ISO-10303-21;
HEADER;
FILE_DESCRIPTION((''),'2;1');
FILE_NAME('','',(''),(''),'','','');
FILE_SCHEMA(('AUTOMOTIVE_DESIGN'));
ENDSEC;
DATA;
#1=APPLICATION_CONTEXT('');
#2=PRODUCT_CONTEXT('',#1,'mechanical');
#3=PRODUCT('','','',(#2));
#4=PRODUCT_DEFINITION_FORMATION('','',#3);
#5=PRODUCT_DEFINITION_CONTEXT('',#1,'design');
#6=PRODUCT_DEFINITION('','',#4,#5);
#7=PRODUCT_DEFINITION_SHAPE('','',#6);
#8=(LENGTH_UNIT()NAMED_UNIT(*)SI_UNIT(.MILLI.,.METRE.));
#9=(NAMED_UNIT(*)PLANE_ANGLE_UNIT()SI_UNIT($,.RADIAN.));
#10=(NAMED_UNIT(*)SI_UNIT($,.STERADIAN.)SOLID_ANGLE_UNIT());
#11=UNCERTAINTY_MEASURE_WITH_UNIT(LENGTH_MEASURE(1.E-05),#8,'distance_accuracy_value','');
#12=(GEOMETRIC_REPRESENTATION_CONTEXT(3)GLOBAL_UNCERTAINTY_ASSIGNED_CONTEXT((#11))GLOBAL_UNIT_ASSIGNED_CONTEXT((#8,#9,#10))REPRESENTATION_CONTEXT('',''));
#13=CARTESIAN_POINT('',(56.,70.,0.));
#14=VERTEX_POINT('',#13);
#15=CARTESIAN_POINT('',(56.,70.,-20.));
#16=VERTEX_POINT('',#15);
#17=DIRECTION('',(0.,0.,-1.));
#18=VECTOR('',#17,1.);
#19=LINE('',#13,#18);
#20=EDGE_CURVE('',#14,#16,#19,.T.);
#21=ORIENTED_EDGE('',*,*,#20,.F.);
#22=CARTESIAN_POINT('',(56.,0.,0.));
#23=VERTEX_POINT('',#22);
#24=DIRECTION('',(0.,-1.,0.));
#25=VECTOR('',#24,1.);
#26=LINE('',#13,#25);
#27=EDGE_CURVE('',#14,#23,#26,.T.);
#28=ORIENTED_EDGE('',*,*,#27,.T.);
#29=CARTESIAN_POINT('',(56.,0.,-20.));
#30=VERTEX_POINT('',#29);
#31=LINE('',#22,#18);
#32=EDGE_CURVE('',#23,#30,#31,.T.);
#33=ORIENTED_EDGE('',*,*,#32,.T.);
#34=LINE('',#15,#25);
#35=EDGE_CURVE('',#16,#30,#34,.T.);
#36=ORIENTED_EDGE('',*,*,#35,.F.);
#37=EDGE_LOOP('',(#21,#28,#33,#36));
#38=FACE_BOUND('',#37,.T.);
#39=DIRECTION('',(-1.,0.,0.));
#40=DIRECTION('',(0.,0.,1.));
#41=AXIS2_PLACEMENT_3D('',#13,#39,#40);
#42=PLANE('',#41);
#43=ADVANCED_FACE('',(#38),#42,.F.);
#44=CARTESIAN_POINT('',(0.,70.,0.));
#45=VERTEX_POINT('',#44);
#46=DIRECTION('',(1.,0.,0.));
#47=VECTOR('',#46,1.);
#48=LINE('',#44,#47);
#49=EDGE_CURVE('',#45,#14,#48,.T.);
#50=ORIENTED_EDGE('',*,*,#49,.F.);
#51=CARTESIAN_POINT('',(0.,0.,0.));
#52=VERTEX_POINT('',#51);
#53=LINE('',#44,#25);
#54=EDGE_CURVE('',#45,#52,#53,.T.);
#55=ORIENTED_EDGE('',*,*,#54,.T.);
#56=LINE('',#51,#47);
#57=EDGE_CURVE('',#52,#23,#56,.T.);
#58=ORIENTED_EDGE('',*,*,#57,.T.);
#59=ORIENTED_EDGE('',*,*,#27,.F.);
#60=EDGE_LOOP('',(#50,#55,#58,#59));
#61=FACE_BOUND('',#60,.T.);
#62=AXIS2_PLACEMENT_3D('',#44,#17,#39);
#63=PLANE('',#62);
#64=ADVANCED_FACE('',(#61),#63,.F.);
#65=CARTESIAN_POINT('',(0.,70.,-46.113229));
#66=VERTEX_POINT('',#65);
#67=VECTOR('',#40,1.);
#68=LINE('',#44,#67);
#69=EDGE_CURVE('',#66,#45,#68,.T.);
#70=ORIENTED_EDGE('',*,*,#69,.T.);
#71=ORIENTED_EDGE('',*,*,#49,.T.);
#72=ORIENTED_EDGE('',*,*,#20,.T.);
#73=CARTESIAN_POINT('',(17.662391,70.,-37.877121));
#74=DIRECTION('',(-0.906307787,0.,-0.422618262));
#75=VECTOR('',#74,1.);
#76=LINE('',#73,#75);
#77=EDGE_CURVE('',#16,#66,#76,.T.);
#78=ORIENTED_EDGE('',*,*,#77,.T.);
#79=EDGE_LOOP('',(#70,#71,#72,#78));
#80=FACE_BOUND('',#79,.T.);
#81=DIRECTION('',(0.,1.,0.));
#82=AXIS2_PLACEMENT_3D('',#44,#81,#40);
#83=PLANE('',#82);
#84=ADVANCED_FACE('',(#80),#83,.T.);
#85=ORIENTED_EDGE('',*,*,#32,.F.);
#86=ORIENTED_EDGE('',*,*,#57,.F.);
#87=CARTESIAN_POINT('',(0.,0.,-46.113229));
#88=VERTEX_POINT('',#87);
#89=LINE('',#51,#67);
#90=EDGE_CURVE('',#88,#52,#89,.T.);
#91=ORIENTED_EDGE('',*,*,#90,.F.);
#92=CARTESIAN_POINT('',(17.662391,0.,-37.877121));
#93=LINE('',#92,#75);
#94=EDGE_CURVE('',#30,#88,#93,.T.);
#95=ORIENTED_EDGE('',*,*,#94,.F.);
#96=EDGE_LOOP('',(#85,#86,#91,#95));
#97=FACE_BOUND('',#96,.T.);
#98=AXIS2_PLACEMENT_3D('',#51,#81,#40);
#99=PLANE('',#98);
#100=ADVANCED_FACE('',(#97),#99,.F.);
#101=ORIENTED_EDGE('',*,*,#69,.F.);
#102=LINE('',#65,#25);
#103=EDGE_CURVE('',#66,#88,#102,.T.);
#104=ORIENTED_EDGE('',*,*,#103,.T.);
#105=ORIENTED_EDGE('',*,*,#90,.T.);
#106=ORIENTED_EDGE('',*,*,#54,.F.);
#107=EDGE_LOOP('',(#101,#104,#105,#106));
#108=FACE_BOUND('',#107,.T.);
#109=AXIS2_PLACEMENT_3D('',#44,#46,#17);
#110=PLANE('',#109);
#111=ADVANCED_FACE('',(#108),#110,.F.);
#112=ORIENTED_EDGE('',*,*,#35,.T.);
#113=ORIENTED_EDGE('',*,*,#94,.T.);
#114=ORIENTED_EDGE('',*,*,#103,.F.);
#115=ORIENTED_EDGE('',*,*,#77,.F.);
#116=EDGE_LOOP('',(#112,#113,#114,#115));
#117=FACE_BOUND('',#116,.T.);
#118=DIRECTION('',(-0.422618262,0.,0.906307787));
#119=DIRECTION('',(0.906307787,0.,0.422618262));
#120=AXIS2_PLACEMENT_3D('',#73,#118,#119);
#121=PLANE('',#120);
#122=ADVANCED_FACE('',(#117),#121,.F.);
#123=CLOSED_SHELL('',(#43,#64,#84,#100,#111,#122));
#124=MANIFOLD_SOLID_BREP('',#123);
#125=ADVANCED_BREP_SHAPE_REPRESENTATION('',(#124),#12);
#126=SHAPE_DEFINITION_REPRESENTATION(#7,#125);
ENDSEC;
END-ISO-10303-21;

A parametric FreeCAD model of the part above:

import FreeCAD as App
import Part
import Sketcher
from FreeCAD import Vector
Q = App.Units.Quantity


def add_polygon(sketch, points):
    """Adds a closed chain of lines whose ends are joined by coincident constraints."""
    first, n = sketch.GeometryCount, len(points)
    for a, b in zip(points, points[1:] + points[:1]):
        sketch.addGeometry(Part.LineSegment(App.Vector(*a, 0), App.Vector(*b, 0)), False)
    for i in range(n):
        sketch.addConstraint(Sketcher.Constraint("Coincident", first + i, 2, first + (i + 1) % n, 1))

doc = App.newDocument("Part")
body = doc.addObject("PartDesign::Body", "Body")

# Sketch on XZ plane
sketch1 = body.newObject("Sketcher::SketchObject", "Sketch")
sketch1.AttachmentSupport = (doc.getObject("XZ_Plane"), [""])
sketch1.MapMode = "FlatFace"
add_polygon(sketch1, [(56, -20), (0, -46), (0, 0), (56, 0)])  # lines 0-3
sketch1.addConstraint([
    Sketcher.Constraint("Vertical", 1),
    Sketcher.Constraint("Horizontal", 2),
    Sketcher.Constraint("Vertical", 3),
    Sketcher.Constraint("Coincident", 1, 2, -1, 1),
    Sketcher.Constraint("DistanceX", 2, 1, 2, 2, Q("56 mm")),
    Sketcher.Constraint("DistanceY", 3, 2, 3, 1, Q("20 mm")),
    Sketcher.Constraint("Angle", 0, Q("-155 deg")),
])
pad1 = body.newObject("PartDesign::Pad", "Pad")
pad1.Profile = sketch1
pad1.Length = 70
pad1.Reversed = True

doc.recompute()
